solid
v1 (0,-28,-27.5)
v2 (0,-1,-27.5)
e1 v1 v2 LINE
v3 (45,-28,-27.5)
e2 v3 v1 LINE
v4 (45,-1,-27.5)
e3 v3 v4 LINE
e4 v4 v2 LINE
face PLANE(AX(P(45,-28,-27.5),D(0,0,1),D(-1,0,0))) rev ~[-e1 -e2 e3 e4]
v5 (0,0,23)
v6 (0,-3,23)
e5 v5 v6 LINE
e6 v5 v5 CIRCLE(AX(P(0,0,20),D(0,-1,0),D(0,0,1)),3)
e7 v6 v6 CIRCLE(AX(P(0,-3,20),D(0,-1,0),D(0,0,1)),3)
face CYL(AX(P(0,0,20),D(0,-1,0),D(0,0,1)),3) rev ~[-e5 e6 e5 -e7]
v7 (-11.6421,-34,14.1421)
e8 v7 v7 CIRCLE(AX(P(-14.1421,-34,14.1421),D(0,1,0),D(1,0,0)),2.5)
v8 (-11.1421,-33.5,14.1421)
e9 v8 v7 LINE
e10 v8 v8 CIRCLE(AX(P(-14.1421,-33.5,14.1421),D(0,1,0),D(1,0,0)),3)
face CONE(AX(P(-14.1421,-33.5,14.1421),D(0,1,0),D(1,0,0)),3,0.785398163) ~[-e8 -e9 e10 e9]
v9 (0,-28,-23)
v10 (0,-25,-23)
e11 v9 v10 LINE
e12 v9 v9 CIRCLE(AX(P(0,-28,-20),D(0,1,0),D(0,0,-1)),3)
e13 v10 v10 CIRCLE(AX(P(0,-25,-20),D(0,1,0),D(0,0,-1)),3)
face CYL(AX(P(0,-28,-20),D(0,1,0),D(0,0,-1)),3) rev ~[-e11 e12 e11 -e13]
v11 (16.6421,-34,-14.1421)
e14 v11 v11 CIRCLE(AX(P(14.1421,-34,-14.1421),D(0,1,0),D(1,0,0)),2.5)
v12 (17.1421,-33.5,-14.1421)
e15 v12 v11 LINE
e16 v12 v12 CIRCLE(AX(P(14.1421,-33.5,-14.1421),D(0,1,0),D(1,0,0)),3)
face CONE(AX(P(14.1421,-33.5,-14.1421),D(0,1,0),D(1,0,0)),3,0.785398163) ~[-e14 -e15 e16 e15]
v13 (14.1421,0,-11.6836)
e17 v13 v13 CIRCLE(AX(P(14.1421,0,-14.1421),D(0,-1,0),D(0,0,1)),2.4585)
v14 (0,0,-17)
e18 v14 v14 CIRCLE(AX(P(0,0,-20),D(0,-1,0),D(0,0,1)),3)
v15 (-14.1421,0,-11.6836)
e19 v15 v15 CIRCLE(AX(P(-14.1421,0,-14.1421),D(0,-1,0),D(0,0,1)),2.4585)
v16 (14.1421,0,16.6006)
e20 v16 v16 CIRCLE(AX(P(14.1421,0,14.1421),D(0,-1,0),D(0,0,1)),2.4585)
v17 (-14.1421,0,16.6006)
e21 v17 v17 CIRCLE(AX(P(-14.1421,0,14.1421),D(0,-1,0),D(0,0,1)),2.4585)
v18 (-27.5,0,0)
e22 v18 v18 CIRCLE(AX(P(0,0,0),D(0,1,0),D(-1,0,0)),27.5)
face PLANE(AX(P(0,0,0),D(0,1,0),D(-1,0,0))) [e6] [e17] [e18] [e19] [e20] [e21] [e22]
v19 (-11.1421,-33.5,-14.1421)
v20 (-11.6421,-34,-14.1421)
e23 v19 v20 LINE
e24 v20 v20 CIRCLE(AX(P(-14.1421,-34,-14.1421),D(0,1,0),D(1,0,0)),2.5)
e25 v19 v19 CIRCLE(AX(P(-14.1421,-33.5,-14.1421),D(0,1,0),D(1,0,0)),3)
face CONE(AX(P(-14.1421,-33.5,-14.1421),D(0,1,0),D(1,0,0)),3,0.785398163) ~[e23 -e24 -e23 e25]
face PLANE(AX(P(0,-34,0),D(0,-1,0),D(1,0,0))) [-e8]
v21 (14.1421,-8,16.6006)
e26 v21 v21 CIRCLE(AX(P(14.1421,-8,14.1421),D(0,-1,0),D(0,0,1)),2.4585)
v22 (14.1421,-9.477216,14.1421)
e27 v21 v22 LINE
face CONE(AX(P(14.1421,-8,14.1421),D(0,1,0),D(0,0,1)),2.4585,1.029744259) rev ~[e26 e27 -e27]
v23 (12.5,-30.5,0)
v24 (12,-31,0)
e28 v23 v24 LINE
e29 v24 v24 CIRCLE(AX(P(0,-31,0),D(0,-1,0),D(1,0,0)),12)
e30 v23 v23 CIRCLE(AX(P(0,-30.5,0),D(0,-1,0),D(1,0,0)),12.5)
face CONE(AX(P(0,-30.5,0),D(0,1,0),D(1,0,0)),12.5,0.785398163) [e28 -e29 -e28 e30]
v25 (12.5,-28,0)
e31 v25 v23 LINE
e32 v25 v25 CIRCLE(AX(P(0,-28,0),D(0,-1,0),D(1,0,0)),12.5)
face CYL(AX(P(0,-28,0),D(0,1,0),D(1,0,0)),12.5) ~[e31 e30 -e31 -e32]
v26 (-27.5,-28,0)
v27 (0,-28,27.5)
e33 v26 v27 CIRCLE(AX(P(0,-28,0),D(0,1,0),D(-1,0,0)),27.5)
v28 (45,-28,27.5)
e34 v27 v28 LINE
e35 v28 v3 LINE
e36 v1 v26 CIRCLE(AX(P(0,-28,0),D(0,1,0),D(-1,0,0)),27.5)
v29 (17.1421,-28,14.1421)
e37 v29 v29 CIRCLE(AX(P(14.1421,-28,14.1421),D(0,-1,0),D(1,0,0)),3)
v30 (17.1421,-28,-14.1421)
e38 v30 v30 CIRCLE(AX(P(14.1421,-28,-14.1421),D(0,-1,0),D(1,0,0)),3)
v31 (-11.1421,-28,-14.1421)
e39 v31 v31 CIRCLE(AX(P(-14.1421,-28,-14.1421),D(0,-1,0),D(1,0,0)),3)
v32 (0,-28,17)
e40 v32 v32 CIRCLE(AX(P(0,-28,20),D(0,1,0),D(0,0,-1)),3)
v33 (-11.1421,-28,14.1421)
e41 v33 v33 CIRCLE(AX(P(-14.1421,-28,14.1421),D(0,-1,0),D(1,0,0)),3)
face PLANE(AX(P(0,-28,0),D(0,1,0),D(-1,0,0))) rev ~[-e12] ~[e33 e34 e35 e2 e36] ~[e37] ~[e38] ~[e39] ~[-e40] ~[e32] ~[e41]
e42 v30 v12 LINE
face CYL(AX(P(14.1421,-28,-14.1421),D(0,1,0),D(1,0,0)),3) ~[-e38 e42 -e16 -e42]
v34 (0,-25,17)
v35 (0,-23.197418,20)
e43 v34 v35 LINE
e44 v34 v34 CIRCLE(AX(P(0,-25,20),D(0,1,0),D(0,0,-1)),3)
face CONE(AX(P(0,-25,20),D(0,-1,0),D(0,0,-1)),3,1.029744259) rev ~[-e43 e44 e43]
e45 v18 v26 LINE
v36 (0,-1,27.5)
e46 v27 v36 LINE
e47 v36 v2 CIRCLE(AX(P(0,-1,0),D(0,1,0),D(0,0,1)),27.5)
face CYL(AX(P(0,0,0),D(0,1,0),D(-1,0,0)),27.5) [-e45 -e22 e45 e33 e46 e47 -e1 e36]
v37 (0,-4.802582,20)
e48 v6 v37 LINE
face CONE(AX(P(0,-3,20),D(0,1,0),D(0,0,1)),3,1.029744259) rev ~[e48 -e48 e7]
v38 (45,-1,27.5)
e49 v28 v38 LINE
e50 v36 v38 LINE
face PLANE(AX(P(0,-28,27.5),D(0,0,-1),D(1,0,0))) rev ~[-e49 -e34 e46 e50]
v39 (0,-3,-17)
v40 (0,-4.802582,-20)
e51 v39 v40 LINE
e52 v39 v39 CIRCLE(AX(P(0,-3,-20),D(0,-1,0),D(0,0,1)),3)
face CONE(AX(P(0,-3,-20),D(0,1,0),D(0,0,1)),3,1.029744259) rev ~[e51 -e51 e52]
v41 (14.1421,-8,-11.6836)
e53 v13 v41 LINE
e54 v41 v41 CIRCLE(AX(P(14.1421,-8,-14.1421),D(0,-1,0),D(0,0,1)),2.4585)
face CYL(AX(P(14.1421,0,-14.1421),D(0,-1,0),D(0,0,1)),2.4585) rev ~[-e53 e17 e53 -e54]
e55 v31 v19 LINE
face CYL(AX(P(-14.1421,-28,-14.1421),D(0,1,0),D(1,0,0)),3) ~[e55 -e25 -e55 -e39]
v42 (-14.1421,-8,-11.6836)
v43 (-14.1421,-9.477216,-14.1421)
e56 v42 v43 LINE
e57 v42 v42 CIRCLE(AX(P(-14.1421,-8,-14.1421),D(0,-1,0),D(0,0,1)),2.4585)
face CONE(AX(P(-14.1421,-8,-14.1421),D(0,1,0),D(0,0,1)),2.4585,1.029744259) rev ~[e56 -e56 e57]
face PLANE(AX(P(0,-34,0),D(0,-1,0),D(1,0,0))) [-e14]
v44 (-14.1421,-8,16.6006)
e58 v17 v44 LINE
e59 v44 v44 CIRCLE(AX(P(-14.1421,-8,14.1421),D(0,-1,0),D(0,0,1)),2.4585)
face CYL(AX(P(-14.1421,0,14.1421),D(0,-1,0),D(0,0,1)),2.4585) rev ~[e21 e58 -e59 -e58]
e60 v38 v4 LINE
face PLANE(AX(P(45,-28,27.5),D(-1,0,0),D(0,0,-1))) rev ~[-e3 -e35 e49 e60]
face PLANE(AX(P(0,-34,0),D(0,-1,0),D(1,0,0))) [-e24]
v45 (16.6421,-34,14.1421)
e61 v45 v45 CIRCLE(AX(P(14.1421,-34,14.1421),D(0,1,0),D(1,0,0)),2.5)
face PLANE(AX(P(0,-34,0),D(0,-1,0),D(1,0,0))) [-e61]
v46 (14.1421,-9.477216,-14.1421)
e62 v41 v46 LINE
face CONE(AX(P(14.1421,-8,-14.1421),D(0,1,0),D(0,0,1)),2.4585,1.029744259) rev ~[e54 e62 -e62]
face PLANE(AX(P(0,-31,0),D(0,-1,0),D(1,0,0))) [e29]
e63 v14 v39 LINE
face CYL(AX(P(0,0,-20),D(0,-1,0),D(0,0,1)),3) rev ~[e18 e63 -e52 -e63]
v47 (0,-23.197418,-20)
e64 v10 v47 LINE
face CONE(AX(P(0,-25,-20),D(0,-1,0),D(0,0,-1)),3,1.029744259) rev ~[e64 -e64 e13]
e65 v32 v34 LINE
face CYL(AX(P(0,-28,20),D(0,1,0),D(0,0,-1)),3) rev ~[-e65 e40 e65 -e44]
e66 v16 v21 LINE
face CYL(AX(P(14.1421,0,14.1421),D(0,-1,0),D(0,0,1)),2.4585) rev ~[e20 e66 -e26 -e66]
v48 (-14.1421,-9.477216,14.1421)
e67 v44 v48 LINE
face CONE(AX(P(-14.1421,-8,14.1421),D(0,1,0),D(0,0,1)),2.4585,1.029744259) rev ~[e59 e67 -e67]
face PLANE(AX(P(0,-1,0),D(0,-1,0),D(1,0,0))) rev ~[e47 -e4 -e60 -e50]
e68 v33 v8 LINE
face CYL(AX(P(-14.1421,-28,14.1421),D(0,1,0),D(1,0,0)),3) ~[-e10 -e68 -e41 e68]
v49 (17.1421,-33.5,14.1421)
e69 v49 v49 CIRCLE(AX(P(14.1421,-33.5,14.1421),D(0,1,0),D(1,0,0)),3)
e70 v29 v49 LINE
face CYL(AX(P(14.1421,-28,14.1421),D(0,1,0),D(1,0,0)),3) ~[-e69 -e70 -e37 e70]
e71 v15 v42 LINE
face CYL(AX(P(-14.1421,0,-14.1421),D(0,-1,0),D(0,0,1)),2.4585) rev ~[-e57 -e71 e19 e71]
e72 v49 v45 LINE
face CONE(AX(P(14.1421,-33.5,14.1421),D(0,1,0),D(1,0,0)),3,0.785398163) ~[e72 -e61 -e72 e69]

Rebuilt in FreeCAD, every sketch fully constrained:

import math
import FreeCAD as App
import Part
import Sketcher
from FreeCAD import Vector


def edges_at(feature, points):
    """Names of the edges that pass closest to the given points."""
    edges = feature.Shape.Edges
    near = lambda p: min(range(len(edges)), key=lambda i: edges[i].distToShape(Part.Vertex(*p))[0])
    return sorted({f"Edge{near(p) + 1}" for p in points})

doc = App.newDocument("Part")
body = doc.addObject("PartDesign::Body", "Body")

# Sketch on XZ plane
sketch1 = doc.addObject("Sketcher::SketchObject", "Sketch")
body.addObject(sketch1)
sketch1.AttachmentSupport = (doc.XZ_Plane, [""])
sketch1.MapMode = "FlatFace"
sketch1.addGeometry(Part.Circle(Vector(0, 0, 0), Vector(0, 0, 1), 28), False)
sketch1.addConstraint([
    Sketcher.Constraint("Coincident", 0, 3, -1, 1),
    Sketcher.Constraint("Diameter", 0, 55.0),
])
pad1 = doc.addObject("PartDesign::Pad", "Pad")
body.addObject(pad1)
pad1.Profile = sketch1
pad1.Length = 28

# Sketch on XZ plane
sketch2 = doc.addObject("Sketcher::SketchObject", "Sketch001")
body.addObject(sketch2)
sketch2.AttachmentSupport = (doc.XZ_Plane, [""])
sketch2.MapMode = "FlatFace"
sketch2.AttachmentOffset = App.Placement(Vector(0, 0, 28), App.Rotation())
sketch2.addGeometry([
    Part.ArcOfCircle(Part.Circle(Vector(0, 0, 0), Vector(0, 0, 1), 28), math.radians(-90), math.radians(90)),
    Part.LineSegment(Vector(0, -28, 0), Vector(45, -28, 0)),
    Part.LineSegment(Vector(45, -28, 0), Vector(45, 28, 0)),
    Part.LineSegment(Vector(45, 28, 0), Vector(0, 28, 0)),
], False)
sketch2.addConstraint([
    Sketcher.Constraint("Tangent", 0, 1, 1, 1),
    Sketcher.Constraint("Coincident", 1, 2, 2, 1),
    Sketcher.Constraint("Coincident", 2, 2, 3, 1),
    Sketcher.Constraint("Tangent", 3, 2, 0, 2),
    Sketcher.Constraint("Horizontal", 1),
    Sketcher.Constraint("Vertical", 2),
    Sketcher.Constraint("Horizontal", 3),
    Sketcher.Constraint("Coincident", 0, 3, -1, 1),
    Sketcher.Constraint("Radius", 0, 27.5),
    Sketcher.Constraint("DistanceX", 1, 1, 1, 2, 45.0),
])
pad2 = doc.addObject("PartDesign::Pad", "Pad001")
body.addObject(pad2)
pad2.Profile = sketch2
pad2.Length = 27
pad2.Reversed = True

# Sketch on XZ plane
sketch3 = doc.addObject("Sketcher::SketchObject", "Sketch002")
body.addObject(sketch3)
sketch3.AttachmentSupport = (doc.XZ_Plane, [""])
sketch3.MapMode = "FlatFace"
sketch3.addGeometry([
    Part.Circle(Vector(0, 20, 0), Vector(0, 0, 1), 3),
    Part.Circle(Vector(0, -20, 0), Vector(0, 0, 1), 3),
], False)
sketch3.addConstraint([
    Sketcher.Constraint("Equal", 0, 1),
    Sketcher.Constraint("Symmetric", 0, 3, 1, 3, -1, 1),
    Sketcher.Constraint("PointOnObject", 0, 3, -2),
    Sketcher.Constraint("Diameter", 0, 6.0),
    Sketcher.Constraint("DistanceY", -1, 1, 0, 3, 20.0),
])
doc.recompute()
hole = doc.addObject("PartDesign::Hole", "Hole")
body.addObject(hole)
hole.Profile = sketch3
hole.ThreadType = "None"
hole.Diameter = 6
hole.DepthType = "Dimension"
hole.Depth = 3
hole.DrillPoint = "Angled"
hole.DrillPointAngle = 118
hole.Reversed = True

# Sketch on XZ plane
sketch4 = doc.addObject("Sketcher::SketchObject", "Sketch003")
body.addObject(sketch4)
sketch4.AttachmentSupport = (doc.XZ_Plane, [""])
sketch4.MapMode = "FlatFace"
sketch4.addGeometry([
    Part.Circle(Vector(-14.1, 14.1, 0), Vector(0, 0, 1), 2.5),
    Part.Circle(Vector(14.1, 14.1, 0), Vector(0, 0, 1), 2.5),
    Part.Circle(Vector(14.1, -14.1, 0), Vector(0, 0, 1), 2.5),
    Part.Circle(Vector(-14.1, -14.1, 0), Vector(0, 0, 1), 2.5),
], False)
sketch4.addConstraint([
    Sketcher.Constraint("Equal", 0, 1),
    Sketcher.Constraint("Equal", 1, 2),
    Sketcher.Constraint("Equal", 2, 3),
    Sketcher.Constraint("Symmetric", 0, 3, 2, 3, -1, 1),
    Sketcher.Constraint("Symmetric", 1, 3, 3, 3, -1, 1),
    Sketcher.Constraint("Symmetric", 0, 3, 1, 3, -2),
    Sketcher.Constraint("Diameter", 0, 4.917),
    Sketcher.Constraint("DistanceX", 0, 3, -1, 1, 14.142),
    Sketcher.Constraint("DistanceY", -1, 1, 0, 3, 14.142),
])
doc.recompute()
hole2 = doc.addObject("PartDesign::Hole", "Hole001")
body.addObject(hole2)
hole2.Profile = sketch4
hole2.ThreadType = "None"
hole2.Diameter = 4.917
hole2.DepthType = "Dimension"
hole2.Depth = 8
hole2.DrillPoint = "Angled"
hole2.DrillPointAngle = 118
hole2.Reversed = True

# Sketch on XZ plane
sketch5 = doc.addObject("Sketcher::SketchObject", "Sketch004")
body.addObject(sketch5)
sketch5.AttachmentSupport = (doc.XZ_Plane, [""])
sketch5.MapMode = "FlatFace"
sketch5.AttachmentOffset = App.Placement(Vector(0, 0, 28), App.Rotation())
sketch5.addGeometry(Part.Circle(Vector(0, 0, 0), Vector(0, 0, 1), 12), False)
sketch5.addConstraint([
    Sketcher.Constraint("Coincident", 0, 3, -1, 1),
    Sketcher.Constraint("Diameter", 0, 25.0),
])
pad3 = doc.addObject("PartDesign::Pad", "Pad002")
body.addObject(pad3)
pad3.Profile = sketch5
pad3.Length = 3
doc.recompute()

chamfer = doc.addObject("PartDesign::Chamfer", "Chamfer")
body.addObject(chamfer)
chamfer.Base = (pad3, edges_at(pad3, [(-12.5, -31, 0)]))
chamfer.Size = 0.5

# Sketch on XZ plane
sketch6 = doc.addObject("Sketcher::SketchObject", "Sketch005")
body.addObject(sketch6)
sketch6.AttachmentSupport = (doc.XZ_Plane, [""])
sketch6.MapMode = "FlatFace"
sketch6.AttachmentOffset = App.Placement(Vector(0, 0, 28), App.Rotation())
sketch6.addGeometry([
    Part.Circle(Vector(14.1, 14.1, 0), Vector(0, 0, 1), 3),
    Part.Circle(Vector(14.1, -14.1, 0), Vector(0, 0, 1), 3),
    Part.Circle(Vector(-14.1, 14.1, 0), Vector(0, 0, 1), 3),
    Part.Circle(Vector(-14.1, -14.1, 0), Vector(0, 0, 1), 3),
], False)
sketch6.addConstraint([
    Sketcher.Constraint("Equal", 0, 1),
    Sketcher.Constraint("Equal", 1, 2),
    Sketcher.Constraint("Equal", 2, 3),
    Sketcher.Constraint("Symmetric", 1, 3, 2, 3, -1, 1),
    Sketcher.Constraint("Symmetric", 0, 3, 3, 3, -1, 1),
    Sketcher.Constraint("Symmetric", 0, 3, 2, 3, -2),
    Sketcher.Constraint("Diameter", 0, 6.0),
    Sketcher.Constraint("DistanceX", -1, 1, 0, 3, 14.142),
    Sketcher.Constraint("DistanceY", -1, 1, 0, 3, 14.142),
])
pad4 = doc.addObject("PartDesign::Pad", "Pad003")
body.addObject(pad4)
pad4.Profile = sketch6
pad4.Length = 6
doc.recompute()

chamfer2 = doc.addObject("PartDesign::Chamfer", "Chamfer001")
body.addObject(chamfer2)
chamfer2.Base = (pad4, edges_at(pad4, [(-17.142, -34, -14.142)]))
chamfer2.Size = 0.5
doc.recompute()

chamfer3 = doc.addObject("PartDesign::Chamfer", "Chamfer002")
body.addObject(chamfer3)
chamfer3.Base = (chamfer2, edges_at(chamfer2, [(-17.142, -34, 14.142)]))
chamfer3.Size = 0.5
doc.recompute()

chamfer4 = doc.addObject("PartDesign::Chamfer", "Chamfer003")
body.addObject(chamfer4)
chamfer4.Base = (chamfer3, edges_at(chamfer3, [(11.142, -34, 14.142)]))
chamfer4.Size = 0.5
doc.recompute()

chamfer5 = doc.addObject("PartDesign::Chamfer", "Chamfer004")
body.addObject(chamfer5)
chamfer5.Base = (chamfer4, edges_at(chamfer4, [(11.142, -34, -14.142)]))
chamfer5.Size = 0.5

# Sketch on XZ plane
sketch7 = doc.addObject("Sketcher::SketchObject", "Sketch006")
body.addObject(sketch7)
sketch7.AttachmentSupport = (doc.XZ_Plane, [""])
sketch7.MapMode = "FlatFace"
sketch7.AttachmentOffset = App.Placement(Vector(0, 0, 28), App.Rotation())
sketch7.addGeometry([
    Part.Circle(Vector(0, 20, 0), Vector(0, 0, 1), 3),
    Part.Circle(Vector(0, -20, 0), Vector(0, 0, 1), 3),
], False)
sketch7.addConstraint([
    Sketcher.Constraint("Equal", 0, 1),
    Sketcher.Constraint("Symmetric", 0, 3, 1, 3, -1, 1),
    Sketcher.Constraint("PointOnObject", 0, 3, -2),
    Sketcher.Constraint("Diameter", 0, 6.0),
    Sketcher.Constraint("DistanceY", -1, 1, 0, 3, 20.0),
])
doc.recompute()
hole3 = doc.addObject("PartDesign::Hole", "Hole002")
body.addObject(hole3)
hole3.Profile = sketch7
hole3.ThreadType = "None"
hole3.Diameter = 6
hole3.DepthType = "Dimension"
hole3.Depth = 3
hole3.DrillPoint = "Angled"
hole3.DrillPointAngle = 118

doc.recompute()
